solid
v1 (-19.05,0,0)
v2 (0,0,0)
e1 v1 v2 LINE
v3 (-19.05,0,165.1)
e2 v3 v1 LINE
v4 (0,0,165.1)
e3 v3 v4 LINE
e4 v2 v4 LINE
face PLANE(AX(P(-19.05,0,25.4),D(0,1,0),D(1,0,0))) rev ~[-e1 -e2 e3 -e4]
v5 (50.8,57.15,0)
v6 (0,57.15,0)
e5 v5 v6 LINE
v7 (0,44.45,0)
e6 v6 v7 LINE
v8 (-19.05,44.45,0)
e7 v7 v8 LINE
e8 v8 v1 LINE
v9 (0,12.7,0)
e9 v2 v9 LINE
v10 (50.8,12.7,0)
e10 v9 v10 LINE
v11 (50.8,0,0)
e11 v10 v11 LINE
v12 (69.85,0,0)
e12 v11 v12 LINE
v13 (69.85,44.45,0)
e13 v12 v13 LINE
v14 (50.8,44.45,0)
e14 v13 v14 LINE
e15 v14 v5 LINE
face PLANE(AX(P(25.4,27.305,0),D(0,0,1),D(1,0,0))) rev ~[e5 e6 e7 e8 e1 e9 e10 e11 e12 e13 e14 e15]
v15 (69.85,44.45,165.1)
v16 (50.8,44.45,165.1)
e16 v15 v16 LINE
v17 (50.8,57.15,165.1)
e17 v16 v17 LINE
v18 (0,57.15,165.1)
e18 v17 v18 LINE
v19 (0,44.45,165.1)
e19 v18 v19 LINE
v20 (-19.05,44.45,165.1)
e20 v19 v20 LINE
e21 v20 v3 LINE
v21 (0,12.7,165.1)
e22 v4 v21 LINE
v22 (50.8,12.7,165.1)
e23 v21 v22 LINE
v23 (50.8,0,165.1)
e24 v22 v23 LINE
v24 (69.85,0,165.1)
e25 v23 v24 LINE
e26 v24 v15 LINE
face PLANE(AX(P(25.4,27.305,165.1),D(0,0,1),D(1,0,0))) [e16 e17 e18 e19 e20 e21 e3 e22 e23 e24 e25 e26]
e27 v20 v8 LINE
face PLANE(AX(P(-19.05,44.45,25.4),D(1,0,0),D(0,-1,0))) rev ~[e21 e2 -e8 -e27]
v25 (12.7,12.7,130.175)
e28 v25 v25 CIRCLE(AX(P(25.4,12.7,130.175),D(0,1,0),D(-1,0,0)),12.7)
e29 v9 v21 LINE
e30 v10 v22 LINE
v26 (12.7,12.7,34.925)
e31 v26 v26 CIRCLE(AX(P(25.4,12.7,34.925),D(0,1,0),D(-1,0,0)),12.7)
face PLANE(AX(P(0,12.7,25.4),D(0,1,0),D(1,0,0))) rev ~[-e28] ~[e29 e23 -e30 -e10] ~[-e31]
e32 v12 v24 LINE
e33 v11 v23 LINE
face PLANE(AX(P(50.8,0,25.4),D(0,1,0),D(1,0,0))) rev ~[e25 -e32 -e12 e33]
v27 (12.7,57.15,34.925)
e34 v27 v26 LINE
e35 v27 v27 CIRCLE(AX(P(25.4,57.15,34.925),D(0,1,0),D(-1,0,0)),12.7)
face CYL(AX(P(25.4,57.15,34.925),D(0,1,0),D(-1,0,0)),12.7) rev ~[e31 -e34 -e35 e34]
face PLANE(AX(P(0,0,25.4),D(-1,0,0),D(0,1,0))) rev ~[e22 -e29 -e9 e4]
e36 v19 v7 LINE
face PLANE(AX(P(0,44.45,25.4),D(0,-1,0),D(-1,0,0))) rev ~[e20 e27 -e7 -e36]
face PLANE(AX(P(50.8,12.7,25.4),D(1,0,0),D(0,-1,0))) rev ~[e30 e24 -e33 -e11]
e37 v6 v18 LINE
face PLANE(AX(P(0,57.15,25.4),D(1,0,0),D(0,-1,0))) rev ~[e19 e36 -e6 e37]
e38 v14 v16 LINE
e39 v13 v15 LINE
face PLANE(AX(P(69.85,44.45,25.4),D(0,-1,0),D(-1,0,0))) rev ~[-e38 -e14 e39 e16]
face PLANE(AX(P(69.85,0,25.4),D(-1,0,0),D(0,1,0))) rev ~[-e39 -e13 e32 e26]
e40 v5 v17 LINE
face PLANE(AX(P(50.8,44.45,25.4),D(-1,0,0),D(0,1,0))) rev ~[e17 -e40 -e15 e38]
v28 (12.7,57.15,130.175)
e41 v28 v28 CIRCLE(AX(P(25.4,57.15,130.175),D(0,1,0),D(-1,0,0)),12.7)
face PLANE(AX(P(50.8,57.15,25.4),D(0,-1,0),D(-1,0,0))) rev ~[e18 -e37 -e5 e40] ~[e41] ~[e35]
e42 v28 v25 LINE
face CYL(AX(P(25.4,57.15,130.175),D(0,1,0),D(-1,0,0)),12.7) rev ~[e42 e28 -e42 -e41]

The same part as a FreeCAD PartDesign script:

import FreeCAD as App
import Part
import Sketcher
from FreeCAD import Vector
Q = App.Units.Quantity

doc = App.newDocument("Part")
params = doc.addObject("Spreadsheet::Sheet", "Params")
for row, (alias, value) in enumerate([
    ("sketch1_width", "2 in"),
    ("sketch1_height", "0.5 in"),
    ("sketch1_width2", "0.75 in"),
    ("sketch1_height2", "1.75 in"),
    ("pad1_length", "1 in"),
    ("sketch2_width", "2 in"),
    ("sketch2_height", "0.5 in"),
    ("sketch2_width2", "0.75 in"),
    ("sketch2_height2", "1.75 in"),
    ("pad2_length", "5.5 in"),
    ("sketch3_diameter", "1 in"),
    ("sketch4_diameter", "1 in"),
], start=1):
    params.set(f"A{row}", alias)
    params.set(f"B{row}", "=" + value)
    params.setAlias(f"B{row}", alias)

body = doc.addObject("PartDesign::Body", "Body")

sketch1 = doc.addObject("Sketcher::SketchObject", "Sketch")
body.addObject(sketch1)
sketch1.AttachmentSupport = (doc.XY_Plane, [""])
sketch1.MapMode = "FlatFace"
sketch1.addGeometry([
    Part.LineSegment(Vector(-19, 0, 0), Vector(0, 0, 0)),
    Part.LineSegment(Vector(0, 0, 0), Vector(0, 13, 0)),
    Part.LineSegment(Vector(0, 13, 0), Vector(51, 13, 0)),
    Part.LineSegment(Vector(51, 13, 0), Vector(51, 0, 0)),
    Part.LineSegment(Vector(51, 0, 0), Vector(70, 0, 0)),
    Part.LineSegment(Vector(70, 0, 0), Vector(70, 44, 0)),
    Part.LineSegment(Vector(70, 44, 0), Vector(51, 44, 0)),
    Part.LineSegment(Vector(51, 44, 0), Vector(51, 57, 0)),
    Part.LineSegment(Vector(51, 57, 0), Vector(0, 57, 0)),
    Part.LineSegment(Vector(0, 57, 0), Vector(0, 44, 0)),
    Part.LineSegment(Vector(0, 44, 0), Vector(-19, 44, 0)),
    Part.LineSegment(Vector(-19, 44, 0), Vector(-19, 0, 0)),
], False)
sketch1.addConstraint([
    Sketcher.Constraint("Coincident", 0, 2, 1, 1),
    Sketcher.Constraint("Coincident", 1, 2, 2, 1),
    Sketcher.Constraint("Coincident", 2, 2, 3, 1),
    Sketcher.Constraint("Coincident", 3, 2, 4, 1),
    Sketcher.Constraint("Coincident", 4, 2, 5, 1),
    Sketcher.Constraint("Coincident", 5, 2, 6, 1),
    Sketcher.Constraint("Coincident", 6, 2, 7, 1),
    Sketcher.Constraint("Coincident", 7, 2, 8, 1),
    Sketcher.Constraint("Coincident", 8, 2, 9, 1),
    Sketcher.Constraint("Coincident", 9, 2, 10, 1),
    Sketcher.Constraint("Coincident", 10, 2, 11, 1),
    Sketcher.Constraint("Coincident", 11, 2, 0, 1),
    Sketcher.Constraint("Horizontal", 0),
    Sketcher.Constraint("Vertical", 1),
    Sketcher.Constraint("Horizontal", 2),
    Sketcher.Constraint("Vertical", 3),
    Sketcher.Constraint("Horizontal", 4),
    Sketcher.Constraint("Vertical", 5),
    Sketcher.Constraint("Horizontal", 6),
    Sketcher.Constraint("Vertical", 7),
    Sketcher.Constraint("Horizontal", 8),
    Sketcher.Constraint("Vertical", 9),
    Sketcher.Constraint("Horizontal", 10),
    Sketcher.Constraint("Vertical", 11),
    Sketcher.Constraint("Coincident", 0, 2, -1, 1),
    Sketcher.Constraint("PointOnObject", 3, 2, -1),
    Sketcher.Constraint("PointOnObject", 8, 2, -2),
    Sketcher.Constraint("Horizontal", 6, 2, 9, 2),
    Sketcher.Constraint("Vertical", 3, 2, 6, 2),
    Sketcher.Constraint("Equal", 0, 4),
    Sketcher.Constraint("Equal", 3, 7),
    Sketcher.Constraint("DistanceX", 2, 1, 2, 2, Q("2 in")),
    Sketcher.Constraint("DistanceY", 1, 1, 1, 2, Q("0.5 in")),
    Sketcher.Constraint("DistanceX", 0, 1, 0, 2, Q("0.75 in")),
    Sketcher.Constraint("DistanceY", 5, 1, 5, 2, Q("1.75 in")),
])
sketch1.setExpression("Constraints[31]", "Params.sketch1_width")
sketch1.setExpression("Constraints[32]", "Params.sketch1_height")
sketch1.setExpression("Constraints[33]", "Params.sketch1_width2")
sketch1.setExpression("Constraints[34]", "Params.sketch1_height2")
pad1 = doc.addObject("PartDesign::Pad", "Pad")
body.addObject(pad1)
pad1.Profile = sketch1
pad1.setExpression("Length", "Params.pad1_length")

sketch2 = doc.addObject("Sketcher::SketchObject", "Sketch001")
body.addObject(sketch2)
sketch2.AttachmentSupport = (doc.XY_Plane, [""])
sketch2.MapMode = "FlatFace"
sketch2.AttachmentOffset = App.Placement(Vector(0, 0, 1 * 25.4), App.Rotation())
sketch2.addGeometry([
    Part.LineSegment(Vector(-19, 0, 0), Vector(0, 0, 0)),
    Part.LineSegment(Vector(0, 0, 0), Vector(0, 13, 0)),
    Part.LineSegment(Vector(0, 13, 0), Vector(51, 13, 0)),
    Part.LineSegment(Vector(51, 13, 0), Vector(51, 0, 0)),
    Part.LineSegment(Vector(51, 0, 0), Vector(70, 0, 0)),
    Part.LineSegment(Vector(70, 0, 0), Vector(70, 44, 0)),
    Part.LineSegment(Vector(70, 44, 0), Vector(51, 44, 0)),
    Part.LineSegment(Vector(51, 44, 0), Vector(51, 57, 0)),
    Part.LineSegment(Vector(51, 57, 0), Vector(0, 57, 0)),
    Part.LineSegment(Vector(0, 57, 0), Vector(0, 44, 0)),
    Part.LineSegment(Vector(0, 44, 0), Vector(-19, 44, 0)),
    Part.LineSegment(Vector(-19, 44, 0), Vector(-19, 0, 0)),
], False)
sketch2.addConstraint([
    Sketcher.Constraint("Coincident", 0, 2, 1, 1),
    Sketcher.Constraint("Coincident", 1, 2, 2, 1),
    Sketcher.Constraint("Coincident", 2, 2, 3, 1),
    Sketcher.Constraint("Coincident", 3, 2, 4, 1),
    Sketcher.Constraint("Coincident", 4, 2, 5, 1),
    Sketcher.Constraint("Coincident", 5, 2, 6, 1),
    Sketcher.Constraint("Coincident", 6, 2, 7, 1),
    Sketcher.Constraint("Coincident", 7, 2, 8, 1),
    Sketcher.Constraint("Coincident", 8, 2, 9, 1),
    Sketcher.Constraint("Coincident", 9, 2, 10, 1),
    Sketcher.Constraint("Coincident", 10, 2, 11, 1),
    Sketcher.Constraint("Coincident", 11, 2, 0, 1),
    Sketcher.Constraint("Horizontal", 0),
    Sketcher.Constraint("Vertical", 1),
    Sketcher.Constraint("Horizontal", 2),
    Sketcher.Constraint("Vertical", 3),
    Sketcher.Constraint("Horizontal", 4),
    Sketcher.Constraint("Vertical", 5),
    Sketcher.Constraint("Horizontal", 6),
    Sketcher.Constraint("Vertical", 7),
    Sketcher.Constraint("Horizontal", 8),
    Sketcher.Constraint("Vertical", 9),
    Sketcher.Constraint("Horizontal", 10),
    Sketcher.Constraint("Vertical", 11),
    Sketcher.Constraint("Coincident", 0, 2, -1, 1),
    Sketcher.Constraint("PointOnObject", 3, 2, -1),
    Sketcher.Constraint("PointOnObject", 8, 2, -2),
    Sketcher.Constraint("Horizontal", 6, 2, 9, 2),
    Sketcher.Constraint("Vertical", 3, 2, 6, 2),
    Sketcher.Constraint("Equal", 0, 4),
    Sketcher.Constraint("Equal", 3, 7),
    Sketcher.Constraint("DistanceX", 2, 1, 2, 2, Q("2 in")),
    Sketcher.Constraint("DistanceY", 1, 1, 1, 2, Q("0.5 in")),
    Sketcher.Constraint("DistanceX", 0, 1, 0, 2, Q("0.75 in")),
    Sketcher.Constraint("DistanceY", 5, 1, 5, 2, Q("1.75 in")),
])
sketch2.setExpression("Constraints[31]", "Params.sketch2_width")
sketch2.setExpression("Constraints[32]", "Params.sketch2_height")
sketch2.setExpression("Constraints[33]", "Params.sketch2_width2")
sketch2.setExpression("Constraints[34]", "Params.sketch2_height2")
pad2 = doc.addObject("PartDesign::Pad", "Pad001")
body.addObject(pad2)
pad2.Profile = sketch2
pad2.setExpression("Length", "Params.pad2_length")

sketch3 = doc.addObject("Sketcher::SketchObject", "Sketch002")
body.addObject(sketch3)
sketch3.AttachmentSupport = (doc.XZ_Plane, [""])
sketch3.MapMode = "FlatFace"
sketch3.AttachmentOffset = App.Placement(Vector(0, 0, -2.25 * 25.4), App.Rotation())
sketch3.addGeometry(Part.Circle(Vector(25, 130, 0), Vector(0, 0, 1), 13), False)
sketch3.addConstraint([
    Sketcher.Constraint("Diameter", 0, Q("1 in")),
    Sketcher.Constraint("DistanceX", -1, 1, 0, 3, Q("1 in")),
    Sketcher.Constraint("DistanceY", -1, 1, 0, 3, Q("5.125 in")),
])
sketch3.setExpression("Constraints[0]", "Params.sketch3_diameter")
pocket1 = doc.addObject("PartDesign::Pocket", "Pocket")
body.addObject(pocket1)
pocket1.Profile = sketch3
pocket1.Type = "ThroughAll"
pocket1.Reversed = True

sketch4 = doc.addObject("Sketcher::SketchObject", "Sketch003")
body.addObject(sketch4)
sketch4.AttachmentSupport = (doc.XZ_Plane, [""])
sketch4.MapMode = "FlatFace"
sketch4.AttachmentOffset = App.Placement(Vector(0, 0, -2.25 * 25.4), App.Rotation())
sketch4.addGeometry(Part.Circle(Vector(25, 35, 0), Vector(0, 0, 1), 13), False)
sketch4.addConstraint([
    Sketcher.Constraint("Diameter", 0, Q("1 in")),
    Sketcher.Constraint("DistanceX", -1, 1, 0, 3, Q("1 in")),
    Sketcher.Constraint("DistanceY", -1, 1, 0, 3, Q("1.375 in")),
])
sketch4.setExpression("Constraints[0]", "Params.sketch4_diameter")
pocket2 = doc.addObject("PartDesign::Pocket", "Pocket001")
body.addObject(pocket2)
pocket2.Profile = sketch4
pocket2.Type = "ThroughAll"
pocket2.Reversed = True

doc.recompute()
